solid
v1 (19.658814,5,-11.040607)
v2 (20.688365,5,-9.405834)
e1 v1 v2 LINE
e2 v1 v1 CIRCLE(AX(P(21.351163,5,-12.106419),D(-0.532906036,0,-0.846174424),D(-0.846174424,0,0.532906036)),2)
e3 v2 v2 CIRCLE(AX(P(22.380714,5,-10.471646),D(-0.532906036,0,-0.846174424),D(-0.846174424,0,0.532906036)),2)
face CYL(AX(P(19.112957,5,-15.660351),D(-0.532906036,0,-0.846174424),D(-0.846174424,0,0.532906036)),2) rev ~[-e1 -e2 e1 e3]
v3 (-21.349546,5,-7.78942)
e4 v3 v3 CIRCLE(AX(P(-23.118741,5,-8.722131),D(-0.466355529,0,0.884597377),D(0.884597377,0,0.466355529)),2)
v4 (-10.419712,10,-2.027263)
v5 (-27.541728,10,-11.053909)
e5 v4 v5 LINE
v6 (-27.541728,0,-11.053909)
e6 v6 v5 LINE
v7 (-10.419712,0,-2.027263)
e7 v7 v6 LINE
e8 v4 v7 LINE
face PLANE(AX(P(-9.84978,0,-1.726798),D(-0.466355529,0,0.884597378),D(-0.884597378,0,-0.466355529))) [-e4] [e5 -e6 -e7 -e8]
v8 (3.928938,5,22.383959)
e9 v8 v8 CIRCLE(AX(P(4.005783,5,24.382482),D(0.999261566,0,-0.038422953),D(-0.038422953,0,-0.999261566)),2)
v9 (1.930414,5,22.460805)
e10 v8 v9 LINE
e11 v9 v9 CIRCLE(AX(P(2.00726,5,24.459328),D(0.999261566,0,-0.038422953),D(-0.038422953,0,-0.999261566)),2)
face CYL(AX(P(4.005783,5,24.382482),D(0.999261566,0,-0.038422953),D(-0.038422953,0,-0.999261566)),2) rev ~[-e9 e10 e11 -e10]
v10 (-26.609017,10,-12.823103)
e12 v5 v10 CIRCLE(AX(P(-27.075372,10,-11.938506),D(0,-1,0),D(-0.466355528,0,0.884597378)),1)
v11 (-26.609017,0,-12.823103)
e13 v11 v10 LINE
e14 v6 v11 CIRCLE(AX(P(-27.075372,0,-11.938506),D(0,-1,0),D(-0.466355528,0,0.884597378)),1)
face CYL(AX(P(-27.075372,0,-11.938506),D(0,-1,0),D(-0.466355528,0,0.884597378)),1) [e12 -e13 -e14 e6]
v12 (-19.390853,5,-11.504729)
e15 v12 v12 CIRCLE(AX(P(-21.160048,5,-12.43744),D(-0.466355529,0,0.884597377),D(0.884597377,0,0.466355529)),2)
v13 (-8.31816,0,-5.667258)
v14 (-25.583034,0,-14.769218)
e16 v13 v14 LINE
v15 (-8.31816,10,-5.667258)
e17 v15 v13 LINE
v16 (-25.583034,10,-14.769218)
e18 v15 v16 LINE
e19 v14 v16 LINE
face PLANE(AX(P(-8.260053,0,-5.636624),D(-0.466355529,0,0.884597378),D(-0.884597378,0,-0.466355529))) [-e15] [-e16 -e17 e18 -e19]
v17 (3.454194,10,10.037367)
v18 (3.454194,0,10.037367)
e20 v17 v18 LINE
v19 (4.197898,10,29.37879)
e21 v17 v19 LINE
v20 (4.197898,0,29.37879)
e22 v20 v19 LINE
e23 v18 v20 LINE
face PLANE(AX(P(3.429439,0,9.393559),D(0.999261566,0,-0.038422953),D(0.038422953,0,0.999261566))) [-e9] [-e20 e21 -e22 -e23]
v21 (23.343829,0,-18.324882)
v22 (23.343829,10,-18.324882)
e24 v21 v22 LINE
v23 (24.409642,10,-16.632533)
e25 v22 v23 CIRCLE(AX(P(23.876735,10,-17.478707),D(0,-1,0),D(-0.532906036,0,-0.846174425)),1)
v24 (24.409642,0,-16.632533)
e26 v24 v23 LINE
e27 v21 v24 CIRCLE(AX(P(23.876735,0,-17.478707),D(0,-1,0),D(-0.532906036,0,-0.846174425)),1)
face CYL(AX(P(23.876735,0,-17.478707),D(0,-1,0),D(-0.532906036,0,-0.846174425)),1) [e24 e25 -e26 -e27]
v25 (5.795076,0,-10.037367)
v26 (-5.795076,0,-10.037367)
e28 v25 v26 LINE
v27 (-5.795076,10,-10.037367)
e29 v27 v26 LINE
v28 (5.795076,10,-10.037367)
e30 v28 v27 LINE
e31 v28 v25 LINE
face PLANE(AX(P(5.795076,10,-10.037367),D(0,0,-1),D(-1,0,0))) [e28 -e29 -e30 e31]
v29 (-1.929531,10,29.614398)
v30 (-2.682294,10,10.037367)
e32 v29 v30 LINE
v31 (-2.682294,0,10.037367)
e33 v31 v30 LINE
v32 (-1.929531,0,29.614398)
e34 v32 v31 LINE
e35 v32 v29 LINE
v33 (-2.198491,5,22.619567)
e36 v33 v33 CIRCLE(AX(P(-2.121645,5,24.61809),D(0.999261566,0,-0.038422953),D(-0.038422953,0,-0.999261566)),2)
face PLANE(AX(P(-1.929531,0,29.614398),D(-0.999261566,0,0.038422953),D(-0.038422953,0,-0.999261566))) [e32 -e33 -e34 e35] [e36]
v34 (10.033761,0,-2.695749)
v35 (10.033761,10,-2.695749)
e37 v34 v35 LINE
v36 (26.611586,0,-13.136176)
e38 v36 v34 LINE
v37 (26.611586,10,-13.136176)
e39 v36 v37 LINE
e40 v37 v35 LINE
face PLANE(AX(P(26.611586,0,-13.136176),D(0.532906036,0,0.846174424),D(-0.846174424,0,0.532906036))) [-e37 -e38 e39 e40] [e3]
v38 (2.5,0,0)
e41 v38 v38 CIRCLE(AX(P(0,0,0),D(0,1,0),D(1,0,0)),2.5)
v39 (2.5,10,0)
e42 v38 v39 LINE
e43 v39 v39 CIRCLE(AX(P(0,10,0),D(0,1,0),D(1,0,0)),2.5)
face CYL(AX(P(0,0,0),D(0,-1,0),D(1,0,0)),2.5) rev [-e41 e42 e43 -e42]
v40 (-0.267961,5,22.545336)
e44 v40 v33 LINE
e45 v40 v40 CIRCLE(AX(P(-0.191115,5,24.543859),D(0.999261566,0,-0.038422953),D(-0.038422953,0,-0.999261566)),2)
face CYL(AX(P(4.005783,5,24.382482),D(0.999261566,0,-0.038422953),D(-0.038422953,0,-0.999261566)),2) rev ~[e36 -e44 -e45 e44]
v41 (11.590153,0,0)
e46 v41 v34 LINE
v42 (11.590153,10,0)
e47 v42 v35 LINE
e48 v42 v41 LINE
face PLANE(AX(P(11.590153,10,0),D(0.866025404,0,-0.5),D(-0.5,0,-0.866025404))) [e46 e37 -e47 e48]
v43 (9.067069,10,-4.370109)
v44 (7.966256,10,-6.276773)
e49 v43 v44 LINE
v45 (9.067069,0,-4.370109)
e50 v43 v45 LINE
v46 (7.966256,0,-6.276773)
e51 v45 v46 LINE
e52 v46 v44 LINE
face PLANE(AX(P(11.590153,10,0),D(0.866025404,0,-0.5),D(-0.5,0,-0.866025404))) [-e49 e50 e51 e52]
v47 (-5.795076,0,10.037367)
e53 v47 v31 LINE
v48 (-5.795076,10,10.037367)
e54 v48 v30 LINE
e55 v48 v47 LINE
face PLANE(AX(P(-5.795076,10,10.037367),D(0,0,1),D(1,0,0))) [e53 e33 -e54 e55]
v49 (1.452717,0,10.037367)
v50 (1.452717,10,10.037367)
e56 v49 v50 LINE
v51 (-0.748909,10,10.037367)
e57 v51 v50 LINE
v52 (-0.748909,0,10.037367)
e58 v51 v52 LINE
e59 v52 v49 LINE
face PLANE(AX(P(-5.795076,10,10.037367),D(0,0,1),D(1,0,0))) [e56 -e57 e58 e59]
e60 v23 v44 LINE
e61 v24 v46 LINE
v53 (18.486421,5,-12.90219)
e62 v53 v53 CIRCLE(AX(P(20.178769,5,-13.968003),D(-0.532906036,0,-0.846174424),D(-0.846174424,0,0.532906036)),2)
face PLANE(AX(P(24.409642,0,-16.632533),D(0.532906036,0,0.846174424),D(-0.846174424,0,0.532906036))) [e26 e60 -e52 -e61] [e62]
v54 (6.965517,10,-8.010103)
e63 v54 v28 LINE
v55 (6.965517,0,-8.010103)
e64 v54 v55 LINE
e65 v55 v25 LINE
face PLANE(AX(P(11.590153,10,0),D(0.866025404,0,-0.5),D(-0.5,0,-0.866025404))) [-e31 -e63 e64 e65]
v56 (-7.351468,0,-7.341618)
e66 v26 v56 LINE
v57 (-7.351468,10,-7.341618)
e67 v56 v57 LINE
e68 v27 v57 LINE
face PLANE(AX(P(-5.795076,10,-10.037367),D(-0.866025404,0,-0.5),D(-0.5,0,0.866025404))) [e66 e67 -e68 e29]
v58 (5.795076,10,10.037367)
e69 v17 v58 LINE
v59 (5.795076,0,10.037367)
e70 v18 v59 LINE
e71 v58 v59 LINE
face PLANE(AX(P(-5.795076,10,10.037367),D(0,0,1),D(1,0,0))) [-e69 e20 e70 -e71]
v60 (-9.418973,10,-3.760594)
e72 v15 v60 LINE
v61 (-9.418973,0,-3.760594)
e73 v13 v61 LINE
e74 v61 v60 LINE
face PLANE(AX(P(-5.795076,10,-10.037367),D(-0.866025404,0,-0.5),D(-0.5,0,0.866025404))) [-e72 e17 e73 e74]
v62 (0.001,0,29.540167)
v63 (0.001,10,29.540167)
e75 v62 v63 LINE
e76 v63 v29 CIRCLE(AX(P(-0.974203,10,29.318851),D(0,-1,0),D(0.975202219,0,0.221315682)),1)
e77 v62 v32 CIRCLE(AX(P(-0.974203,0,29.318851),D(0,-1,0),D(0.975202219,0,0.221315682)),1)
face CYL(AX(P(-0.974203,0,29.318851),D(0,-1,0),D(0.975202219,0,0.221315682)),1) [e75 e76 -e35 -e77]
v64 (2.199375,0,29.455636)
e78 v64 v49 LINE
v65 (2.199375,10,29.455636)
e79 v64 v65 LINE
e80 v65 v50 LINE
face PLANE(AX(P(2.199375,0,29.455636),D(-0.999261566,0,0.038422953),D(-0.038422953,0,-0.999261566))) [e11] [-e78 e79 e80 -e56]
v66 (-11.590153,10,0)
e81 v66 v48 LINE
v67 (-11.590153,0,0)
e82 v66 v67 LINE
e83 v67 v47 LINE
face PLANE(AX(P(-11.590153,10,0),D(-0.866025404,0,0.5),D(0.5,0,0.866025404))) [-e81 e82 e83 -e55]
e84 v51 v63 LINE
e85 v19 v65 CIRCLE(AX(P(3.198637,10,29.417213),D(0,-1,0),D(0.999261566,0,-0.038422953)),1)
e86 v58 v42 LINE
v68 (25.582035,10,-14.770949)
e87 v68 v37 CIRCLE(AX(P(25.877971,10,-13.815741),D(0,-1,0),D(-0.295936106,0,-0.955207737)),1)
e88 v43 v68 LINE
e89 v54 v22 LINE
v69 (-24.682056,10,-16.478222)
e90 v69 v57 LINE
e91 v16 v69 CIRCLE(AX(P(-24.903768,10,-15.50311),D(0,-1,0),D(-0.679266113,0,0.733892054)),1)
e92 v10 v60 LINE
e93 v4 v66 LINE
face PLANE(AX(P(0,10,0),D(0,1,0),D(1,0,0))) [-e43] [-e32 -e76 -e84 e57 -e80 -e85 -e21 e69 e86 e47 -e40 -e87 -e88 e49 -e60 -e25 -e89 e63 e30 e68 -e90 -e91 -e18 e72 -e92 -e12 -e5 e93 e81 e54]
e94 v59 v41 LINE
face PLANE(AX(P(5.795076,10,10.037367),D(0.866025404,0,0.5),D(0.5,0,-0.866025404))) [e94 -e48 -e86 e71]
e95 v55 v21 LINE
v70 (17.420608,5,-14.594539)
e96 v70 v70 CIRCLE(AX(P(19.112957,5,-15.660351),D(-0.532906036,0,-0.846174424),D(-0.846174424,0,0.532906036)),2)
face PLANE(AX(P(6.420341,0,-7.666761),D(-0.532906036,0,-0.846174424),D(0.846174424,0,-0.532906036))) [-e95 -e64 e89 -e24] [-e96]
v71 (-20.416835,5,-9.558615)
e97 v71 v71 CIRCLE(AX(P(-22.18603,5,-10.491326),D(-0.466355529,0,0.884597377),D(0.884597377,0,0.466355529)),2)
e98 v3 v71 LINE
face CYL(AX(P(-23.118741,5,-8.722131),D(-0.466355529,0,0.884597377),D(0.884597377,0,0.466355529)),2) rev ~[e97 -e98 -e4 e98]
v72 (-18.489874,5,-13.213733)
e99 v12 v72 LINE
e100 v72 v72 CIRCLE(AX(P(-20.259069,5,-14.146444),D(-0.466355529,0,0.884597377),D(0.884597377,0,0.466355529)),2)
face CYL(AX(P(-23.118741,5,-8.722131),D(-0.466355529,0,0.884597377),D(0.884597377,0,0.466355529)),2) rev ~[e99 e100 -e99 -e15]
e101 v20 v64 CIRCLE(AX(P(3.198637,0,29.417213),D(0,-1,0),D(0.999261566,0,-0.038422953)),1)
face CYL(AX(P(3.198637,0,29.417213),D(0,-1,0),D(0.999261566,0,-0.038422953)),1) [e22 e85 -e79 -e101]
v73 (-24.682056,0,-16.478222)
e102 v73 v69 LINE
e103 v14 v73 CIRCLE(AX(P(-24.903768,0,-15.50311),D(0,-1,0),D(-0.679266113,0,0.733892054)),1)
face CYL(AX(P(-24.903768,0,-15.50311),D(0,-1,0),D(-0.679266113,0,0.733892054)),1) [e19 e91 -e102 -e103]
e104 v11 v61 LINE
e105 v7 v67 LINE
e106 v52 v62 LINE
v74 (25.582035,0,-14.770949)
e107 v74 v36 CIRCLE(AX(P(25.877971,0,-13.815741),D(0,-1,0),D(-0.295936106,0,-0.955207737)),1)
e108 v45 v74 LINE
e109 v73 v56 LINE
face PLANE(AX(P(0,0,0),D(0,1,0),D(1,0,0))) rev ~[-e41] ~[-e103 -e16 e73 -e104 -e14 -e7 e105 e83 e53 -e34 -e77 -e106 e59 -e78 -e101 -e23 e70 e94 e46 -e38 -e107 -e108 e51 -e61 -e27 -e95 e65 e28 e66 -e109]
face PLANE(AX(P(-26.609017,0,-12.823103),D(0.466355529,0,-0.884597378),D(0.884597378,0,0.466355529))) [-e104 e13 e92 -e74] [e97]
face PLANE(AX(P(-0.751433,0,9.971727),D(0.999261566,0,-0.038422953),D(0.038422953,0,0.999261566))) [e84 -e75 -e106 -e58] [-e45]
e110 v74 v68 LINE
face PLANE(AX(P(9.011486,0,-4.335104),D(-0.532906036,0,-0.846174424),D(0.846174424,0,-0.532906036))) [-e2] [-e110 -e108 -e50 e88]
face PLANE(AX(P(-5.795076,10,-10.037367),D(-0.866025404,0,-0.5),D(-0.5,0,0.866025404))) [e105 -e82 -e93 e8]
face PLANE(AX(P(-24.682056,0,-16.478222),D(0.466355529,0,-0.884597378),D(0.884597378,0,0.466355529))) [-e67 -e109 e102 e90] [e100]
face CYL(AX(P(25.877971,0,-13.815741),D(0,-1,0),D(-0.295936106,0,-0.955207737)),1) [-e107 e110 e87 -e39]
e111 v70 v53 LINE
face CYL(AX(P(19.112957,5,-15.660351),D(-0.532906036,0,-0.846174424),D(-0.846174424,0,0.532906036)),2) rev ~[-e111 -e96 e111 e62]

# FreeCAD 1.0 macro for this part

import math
import FreeCAD as App
import Part
import Sketcher
Q = App.Units.Quantity


def add_polygon(sketch, points):
    """Adds a closed chain of lines whose ends are joined by coincident constraints."""
    first, n = sketch.GeometryCount, len(points)
    for a, b in zip(points, points[1:] + points[:1]):
        sketch.addGeometry(Part.LineSegment(App.Vector(*a, 0), App.Vector(*b, 0)), False)
    for i in range(n):
        sketch.addConstraint(Sketcher.Constraint("Coincident", first + i, 2, first + (i + 1) % n, 1))

doc = App.newDocument("Part")
params = doc.addObject("Spreadsheet::Sheet", "Params")
for row, (alias, value) in enumerate([
    ("sketch1_diameter", "5 mm"),
    ("sketch1_radius", "10 mm"),
    ("sketch1_radius2", "1 mm"),
    ("sketch1_length", "20 mm"),
    ("pad1_length", "10 mm"),
    ("sketch2_diameter", "4 mm"),
    ("pocket1_length", "10 mm"),
    ("sketch3_diameter", "5 mm"),
    ("pad2_length", "10 mm"),
], start=1):
    params.set(f"A{row}", alias)
    params.set(f"B{row}", "=" + value)
    params.setAlias(f"B{row}", alias)

body = doc.addObject("PartDesign::Body", "Body")

# Sketch on XZ plane
sketch1 = body.newObject("Sketcher::SketchObject", "Sketch")
sketch1.AttachmentSupport = (doc.getObject("XZ_Plane"), [""])
sketch1.MapMode = "FlatFace"
sketch1.addGeometry(Part.LineSegment(App.Vector(4.2, 29.4, 0), App.Vector(3.4, 9.4, 0)), False)
sketch1.addGeometry(Part.ArcOfCircle(Part.Circle(App.Vector(0, 0, 0), App.Vector(0, 0, 1), 10), math.radians(-14), math.radians(70)), False)
sketch1.addGeometry(Part.LineSegment(App.Vector(9.7, -2.5, 0), App.Vector(26.6, -13.1, 0)), False)
sketch1.addGeometry(Part.ArcOfCircle(Part.Circle(App.Vector(25.9, -13.8, 0), App.Vector(0, 0, 1), 1), math.radians(-107), math.radians(43)), False)
sketch1.addGeometry(Part.LineSegment(App.Vector(25.6, -14.8, 0), App.Vector(9, -4.3, 0)), False)
sketch1.addGeometry(Part.ArcOfCircle(Part.Circle(App.Vector(0, 0, 0), App.Vector(0, 0, 1), 10), math.radians(-38.32), math.radians(-25.69)), False)
sketch1.addGeometry(Part.LineSegment(App.Vector(7.8, -6.2, 0), App.Vector(24.4, -16.6, 0)), False)
sketch1.addGeometry(Part.ArcOfCircle(Part.Circle(App.Vector(23.9, -17.5, 0), App.Vector(0, 0, 1), 1), math.radians(-122), math.radians(58)), False)
sketch1.addGeometry(Part.LineSegment(App.Vector(23.3, -18.3, 0), App.Vector(6.4, -7.7, 0)), False)
sketch1.addGeometry(Part.ArcOfCircle(Part.Circle(App.Vector(0, 0, 0), App.Vector(0, 0, 1), 10), math.radians(-134), math.radians(-50)), False)
sketch1.addGeometry(Part.LineSegment(App.Vector(-7, -7.2, 0), App.Vector(-24.7, -16.5, 0)), False)
sketch1.addGeometry(Part.ArcOfCircle(Part.Circle(App.Vector(-24.9, -15.5, 0), App.Vector(0, 0, 1), 1), math.radians(133), math.radians(283)), False)
sketch1.addGeometry(Part.LineSegment(App.Vector(-25.6, -14.8, 0), App.Vector(-8.3, -5.6, 0)), False)
sketch1.addGeometry(Part.ArcOfCircle(Part.Circle(App.Vector(0, 0, 0), App.Vector(0, 0, 1), 10), math.radians(-158.32), math.radians(-145.69)), False)
sketch1.addGeometry(Part.LineSegment(App.Vector(-9.3, -3.7, 0), App.Vector(-26.6, -12.8, 0)), False)
sketch1.addGeometry(Part.ArcOfCircle(Part.Circle(App.Vector(-27.1, -11.9, 0), App.Vector(0, 0, 1), 1), math.radians(118), math.radians(298)), False)
sketch1.addGeometry(Part.LineSegment(App.Vector(-27.5, -11.1, 0), App.Vector(-9.8, -1.7, 0)), False)
sketch1.addGeometry(Part.ArcOfCircle(Part.Circle(App.Vector(0, 0, 0), App.Vector(0, 0, 1), 10), math.radians(106), math.radians(190)), False)
sketch1.addGeometry(Part.LineSegment(App.Vector(-2.7, 9.6, 0), App.Vector(-1.9, 29.6, 0)), False)
sketch1.addGeometry(Part.ArcOfCircle(Part.Circle(App.Vector(-1, 29.3, 0), App.Vector(0, 0, 1), 1), math.radians(13), math.radians(163)), False)
sketch1.addGeometry(Part.LineSegment(App.Vector(0, 29.5, 0), App.Vector(-0.8, 10, 0)), False)
sketch1.addGeometry(Part.ArcOfCircle(Part.Circle(App.Vector(0, 0, 0), App.Vector(0, 0, 1), 10), math.radians(81.68), math.radians(94.31)), False)
sketch1.addGeometry(Part.LineSegment(App.Vector(1.4, 9.9, 0), App.Vector(2.2, 29.5, 0)), False)
sketch1.addGeometry(Part.ArcOfCircle(Part.Circle(App.Vector(3.2, 29.4, 0), App.Vector(0, 0, 1), 1), math.radians(-2), math.radians(178)), False)
sketch1.addGeometry(Part.Circle(App.Vector(0, 0, 0), App.Vector(0, 0, 1), 2.5), False)
sketch1.addConstraint(Sketcher.Constraint("Coincident", 0, 2, 1, 2))
sketch1.addConstraint(Sketcher.Constraint("Coincident", 1, 1, 2, 1))
sketch1.addConstraint(Sketcher.Constraint("Coincident", 2, 2, 3, 2))
sketch1.addConstraint(Sketcher.Constraint("Coincident", 3, 1, 4, 1))
sketch1.addConstraint(Sketcher.Constraint("Coincident", 4, 2, 5, 2))
sketch1.addConstraint(Sketcher.Constraint("Coincident", 5, 1, 6, 1))
sketch1.addConstraint(Sketcher.Constraint("Tangent", 6, 2, 7, 2))
sketch1.addConstraint(Sketcher.Constraint("Tangent", 7, 1, 8, 1))
sketch1.addConstraint(Sketcher.Constraint("Coincident", 8, 2, 9, 2))
sketch1.addConstraint(Sketcher.Constraint("Coincident", 9, 1, 10, 1))
sketch1.addConstraint(Sketcher.Constraint("Coincident", 10, 2, 11, 2))
sketch1.addConstraint(Sketcher.Constraint("Coincident", 11, 1, 12, 1))
sketch1.addConstraint(Sketcher.Constraint("Coincident", 12, 2, 13, 2))
sketch1.addConstraint(Sketcher.Constraint("Coincident", 13, 1, 14, 1))
sketch1.addConstraint(Sketcher.Constraint("Tangent", 14, 2, 15, 2))
sketch1.addConstraint(Sketcher.Constraint("Tangent", 15, 1, 16, 1))
sketch1.addConstraint(Sketcher.Constraint("Coincident", 16, 2, 17, 2))
sketch1.addConstraint(Sketcher.Constraint("Coincident", 17, 1, 18, 1))
sketch1.addConstraint(Sketcher.Constraint("Coincident", 18, 2, 19, 2))
sketch1.addConstraint(Sketcher.Constraint("Coincident", 19, 1, 20, 1))
sketch1.addConstraint(Sketcher.Constraint("Coincident", 20, 2, 21, 2))
sketch1.addConstraint(Sketcher.Constraint("Coincident", 21, 1, 22, 1))
sketch1.addConstraint(Sketcher.Constraint("Tangent", 22, 2, 23, 2))
sketch1.addConstraint(Sketcher.Constraint("Tangent", 23, 1, 0, 1))
sketch1.addConstraint(Sketcher.Constraint("Coincident", 1, 3, -1, 1))
sketch1.addConstraint(Sketcher.Constraint("Coincident", 5, 3, -1, 1))
sketch1.addConstraint(Sketcher.Constraint("Coincident", 9, 3, -1, 1))
sketch1.addConstraint(Sketcher.Constraint("Coincident", 13, 3, -1, 1))
sketch1.addConstraint(Sketcher.Constraint("Coincident", 17, 3, -1, 1))
sketch1.addConstraint(Sketcher.Constraint("Coincident", 21, 3, -1, 1))
sketch1.addConstraint(Sketcher.Constraint("Coincident", 24, 3, -1, 1))
sketch1.addConstraint(Sketcher.Constraint("Equal", 1, 5))
sketch1.addConstraint(Sketcher.Constraint("Equal", 3, 7))
sketch1.addConstraint(Sketcher.Constraint("Equal", 5, 9))
sketch1.addConstraint(Sketcher.Constraint("Equal", 7, 11))
sketch1.addConstraint(Sketcher.Constraint("Equal", 9, 13))
sketch1.addConstraint(Sketcher.Constraint("Equal", 11, 15))
sketch1.addConstraint(Sketcher.Constraint("Equal", 13, 17))
sketch1.addConstraint(Sketcher.Constraint("Equal", 15, 19))
sketch1.addConstraint(Sketcher.Constraint("Equal", 17, 21))
sketch1.addConstraint(Sketcher.Constraint("Equal", 19, 23))
sketch1.addConstraint(Sketcher.Constraint("Parallel", 2, 4))
sketch1.addConstraint(Sketcher.Constraint("Parallel", 4, 6))
sketch1.addConstraint(Sketcher.Constraint("Parallel", 6, 8))
sketch1.addConstraint(Sketcher.Constraint("Parallel", 10, 12))
sketch1.addConstraint(Sketcher.Constraint("Parallel", 12, 14))
sketch1.addConstraint(Sketcher.Constraint("Parallel", 14, 16))
sketch1.addConstraint(Sketcher.Constraint("Parallel", 0, 18))
sketch1.addConstraint(Sketcher.Constraint("Parallel", 18, 20))
sketch1.addConstraint(Sketcher.Constraint("Parallel", 20, 22))
sketch1.addConstraint(Sketcher.Constraint("Equal", 0, 2))
sketch1.addConstraint(Sketcher.Constraint("Equal", 2, 8))
sketch1.addConstraint(Sketcher.Constraint("Equal", 8, 10))
sketch1.addConstraint(Sketcher.Constraint("Equal", 4, 12))
sketch1.addConstraint(Sketcher.Constraint("Equal", 6, 14))
sketch1.addConstraint(Sketcher.Constraint("Equal", 10, 16))
sketch1.addConstraint(Sketcher.Constraint("Equal", 16, 18))
sketch1.addConstraint(Sketcher.Constraint("Equal", 12, 20))
sketch1.addConstraint(Sketcher.Constraint("Equal", 14, 22))
sketch1.addConstraint(Sketcher.Constraint("Diameter", 24, 5.0))
sketch1.addConstraint(Sketcher.Constraint("Radius", 1, 10.0))
sketch1.addConstraint(Sketcher.Constraint("Radius", 3, 1.0))
sketch1.addConstraint(Sketcher.Constraint("Distance", 0, 20.0))
sketch1.addConstraint(Sketcher.Constraint("DistanceX", -1, 1, 19, 1, 0.001))
sketch1.addConstraint(Sketcher.Constraint("DistanceY", 17, 1, 19, 1, 19.911))
sketch1.addConstraint(Sketcher.Constraint("Distance", 4, 19.5829))
sketch1.addConstraint(Sketcher.Constraint("DistanceY", 5, 1, -1, 1, 6.2007))
sketch1.addConstraint(Sketcher.Constraint("DistanceY", -1, 1, 18, 2, 29.614398))
sketch1.addConstraint(Sketcher.Constraint("DistanceX", -1, 1, 23, 1, 4.197898))
sketch1.addConstraint(Sketcher.Constraint("DistanceX", 7, 3, 3, 1, 1.705299))
sketch1.addConstraint(Sketcher.Constraint("DistanceY", 11, 3, 15, 1, 4.449201))
sketch1.addConstraint(Sketcher.Constraint("DistanceX", -1, 1, 3, 3, 25.877971))
sketch1.addConstraint(Sketcher.Constraint("DistanceX", 11, 3, -1, 1, 24.903768))
sketch1.addConstraint(Sketcher.Constraint("DistanceY", 11, 3, -1, 1, 15.50311))
sketch1.setExpression("Constraints[59]", "Params.sketch1_diameter")
sketch1.setExpression("Constraints[60]", "Params.sketch1_radius")
sketch1.setExpression("Constraints[61]", "Params.sketch1_radius2")
sketch1.setExpression("Constraints[62]", "Params.sketch1_length")
pad1 = body.newObject("PartDesign::Pad", "Pad")
pad1.Profile = sketch1
pad1.setExpression("Length", "Params.pad1_length")
pad1.Reversed = True

# Sketch on an angled plane
sketch2 = body.newObject("Sketcher::SketchObject", "Sketch001")
sketch2.Placement = App.Placement(App.Vector(3.063714, 0, -0.117804), App.Rotation(App.Vector(-0.038422953, 0, -0.999261566), App.Vector(0, 1.000000001, 0), App.Vector(0.999261566, 0, -0.038422953), "ZXY"))
sketch2.addGeometry(Part.Circle(App.Vector(-24.5, 5, 0), App.Vector(0, 0, 1), 2), False)
sketch2.addConstraint(Sketcher.Constraint("Diameter", 0, 4.0))
sketch2.addConstraint(Sketcher.Constraint("DistanceY", -1, 1, 0, 3, 5.0))
sketch2.addConstraint(Sketcher.Constraint("DistanceX", 0, 3, -1, 1, 24.518391))
sketch2.setExpression("Constraints[0]", "Params.sketch2_diameter")
pocket1 = body.newObject("PartDesign::Pocket", "Pocket")
pocket1.Profile = sketch2
pocket1.setExpression("Length", "Params.pocket1_length")
doc.recompute()

polarpattern = body.newObject("PartDesign::PolarPattern", "PolarPattern")
polarpattern.Originals = [pocket1]
polarpattern.Axis = (doc.getObject("Y_Axis"), [""])
polarpattern.Angle = 360
polarpattern.Occurrences = 3
body.Tip = polarpattern

# Sketch on XZ plane
sketch3 = body.newObject("Sketcher::SketchObject", "Sketch002")
sketch3.AttachmentSupport = (doc.getObject("XZ_Plane"), [""])
sketch3.MapMode = "FlatFace"
sketch3.AttachmentOffset = App.Placement(App.Vector(0, 0, -10), App.Rotation())
add_polygon(sketch3, [(11.6, 0), (5.8, -10), (-5.8, -10), (-11.6, 0), (-5.8, 10), (5.8, 10)])  # lines 0-5
sketch3.addGeometry(Part.Circle(App.Vector(0, 0, 0), App.Vector(0, 0, 1), 2.5), False)  # 6
sketch3.addConstraint(Sketcher.Constraint("Horizontal", 1))
sketch3.addConstraint(Sketcher.Constraint("Horizontal", 4))
sketch3.addConstraint(Sketcher.Constraint("Coincident", 6, 3, -1, 1))
sketch3.addConstraint(Sketcher.Constraint("Symmetric", 0, 2, 3, 2, -1, 1))
sketch3.addConstraint(Sketcher.Constraint("Symmetric", 2, 2, 5, 2, -1, 1))
sketch3.addConstraint(Sketcher.Constraint("PointOnObject", 2, 2, -1))
sketch3.addConstraint(Sketcher.Constraint("Parallel", 2, 5))
sketch3.addConstraint(Sketcher.Constraint("Vertical", 1, 2, 3, 2))
sketch3.addConstraint(Sketcher.Constraint("Diameter", 6, 5.0))
sketch3.addConstraint(Sketcher.Constraint("Angle", 0, Q("-120 deg")))
sketch3.addConstraint(Sketcher.Constraint("DistanceX", 1, 2, 1, 1, 11.590153))
sketch3.addConstraint(Sketcher.Constraint("DistanceX", 2, 2, 0, 2, 17.385229))
sketch3.setExpression("Constraints[14]", "Params.sketch3_diameter")
pad2 = body.newObject("PartDesign::Pad", "Pad001")
pad2.Profile = sketch3
pad2.setExpression("Length", "Params.pad2_length")

doc.recompute()
